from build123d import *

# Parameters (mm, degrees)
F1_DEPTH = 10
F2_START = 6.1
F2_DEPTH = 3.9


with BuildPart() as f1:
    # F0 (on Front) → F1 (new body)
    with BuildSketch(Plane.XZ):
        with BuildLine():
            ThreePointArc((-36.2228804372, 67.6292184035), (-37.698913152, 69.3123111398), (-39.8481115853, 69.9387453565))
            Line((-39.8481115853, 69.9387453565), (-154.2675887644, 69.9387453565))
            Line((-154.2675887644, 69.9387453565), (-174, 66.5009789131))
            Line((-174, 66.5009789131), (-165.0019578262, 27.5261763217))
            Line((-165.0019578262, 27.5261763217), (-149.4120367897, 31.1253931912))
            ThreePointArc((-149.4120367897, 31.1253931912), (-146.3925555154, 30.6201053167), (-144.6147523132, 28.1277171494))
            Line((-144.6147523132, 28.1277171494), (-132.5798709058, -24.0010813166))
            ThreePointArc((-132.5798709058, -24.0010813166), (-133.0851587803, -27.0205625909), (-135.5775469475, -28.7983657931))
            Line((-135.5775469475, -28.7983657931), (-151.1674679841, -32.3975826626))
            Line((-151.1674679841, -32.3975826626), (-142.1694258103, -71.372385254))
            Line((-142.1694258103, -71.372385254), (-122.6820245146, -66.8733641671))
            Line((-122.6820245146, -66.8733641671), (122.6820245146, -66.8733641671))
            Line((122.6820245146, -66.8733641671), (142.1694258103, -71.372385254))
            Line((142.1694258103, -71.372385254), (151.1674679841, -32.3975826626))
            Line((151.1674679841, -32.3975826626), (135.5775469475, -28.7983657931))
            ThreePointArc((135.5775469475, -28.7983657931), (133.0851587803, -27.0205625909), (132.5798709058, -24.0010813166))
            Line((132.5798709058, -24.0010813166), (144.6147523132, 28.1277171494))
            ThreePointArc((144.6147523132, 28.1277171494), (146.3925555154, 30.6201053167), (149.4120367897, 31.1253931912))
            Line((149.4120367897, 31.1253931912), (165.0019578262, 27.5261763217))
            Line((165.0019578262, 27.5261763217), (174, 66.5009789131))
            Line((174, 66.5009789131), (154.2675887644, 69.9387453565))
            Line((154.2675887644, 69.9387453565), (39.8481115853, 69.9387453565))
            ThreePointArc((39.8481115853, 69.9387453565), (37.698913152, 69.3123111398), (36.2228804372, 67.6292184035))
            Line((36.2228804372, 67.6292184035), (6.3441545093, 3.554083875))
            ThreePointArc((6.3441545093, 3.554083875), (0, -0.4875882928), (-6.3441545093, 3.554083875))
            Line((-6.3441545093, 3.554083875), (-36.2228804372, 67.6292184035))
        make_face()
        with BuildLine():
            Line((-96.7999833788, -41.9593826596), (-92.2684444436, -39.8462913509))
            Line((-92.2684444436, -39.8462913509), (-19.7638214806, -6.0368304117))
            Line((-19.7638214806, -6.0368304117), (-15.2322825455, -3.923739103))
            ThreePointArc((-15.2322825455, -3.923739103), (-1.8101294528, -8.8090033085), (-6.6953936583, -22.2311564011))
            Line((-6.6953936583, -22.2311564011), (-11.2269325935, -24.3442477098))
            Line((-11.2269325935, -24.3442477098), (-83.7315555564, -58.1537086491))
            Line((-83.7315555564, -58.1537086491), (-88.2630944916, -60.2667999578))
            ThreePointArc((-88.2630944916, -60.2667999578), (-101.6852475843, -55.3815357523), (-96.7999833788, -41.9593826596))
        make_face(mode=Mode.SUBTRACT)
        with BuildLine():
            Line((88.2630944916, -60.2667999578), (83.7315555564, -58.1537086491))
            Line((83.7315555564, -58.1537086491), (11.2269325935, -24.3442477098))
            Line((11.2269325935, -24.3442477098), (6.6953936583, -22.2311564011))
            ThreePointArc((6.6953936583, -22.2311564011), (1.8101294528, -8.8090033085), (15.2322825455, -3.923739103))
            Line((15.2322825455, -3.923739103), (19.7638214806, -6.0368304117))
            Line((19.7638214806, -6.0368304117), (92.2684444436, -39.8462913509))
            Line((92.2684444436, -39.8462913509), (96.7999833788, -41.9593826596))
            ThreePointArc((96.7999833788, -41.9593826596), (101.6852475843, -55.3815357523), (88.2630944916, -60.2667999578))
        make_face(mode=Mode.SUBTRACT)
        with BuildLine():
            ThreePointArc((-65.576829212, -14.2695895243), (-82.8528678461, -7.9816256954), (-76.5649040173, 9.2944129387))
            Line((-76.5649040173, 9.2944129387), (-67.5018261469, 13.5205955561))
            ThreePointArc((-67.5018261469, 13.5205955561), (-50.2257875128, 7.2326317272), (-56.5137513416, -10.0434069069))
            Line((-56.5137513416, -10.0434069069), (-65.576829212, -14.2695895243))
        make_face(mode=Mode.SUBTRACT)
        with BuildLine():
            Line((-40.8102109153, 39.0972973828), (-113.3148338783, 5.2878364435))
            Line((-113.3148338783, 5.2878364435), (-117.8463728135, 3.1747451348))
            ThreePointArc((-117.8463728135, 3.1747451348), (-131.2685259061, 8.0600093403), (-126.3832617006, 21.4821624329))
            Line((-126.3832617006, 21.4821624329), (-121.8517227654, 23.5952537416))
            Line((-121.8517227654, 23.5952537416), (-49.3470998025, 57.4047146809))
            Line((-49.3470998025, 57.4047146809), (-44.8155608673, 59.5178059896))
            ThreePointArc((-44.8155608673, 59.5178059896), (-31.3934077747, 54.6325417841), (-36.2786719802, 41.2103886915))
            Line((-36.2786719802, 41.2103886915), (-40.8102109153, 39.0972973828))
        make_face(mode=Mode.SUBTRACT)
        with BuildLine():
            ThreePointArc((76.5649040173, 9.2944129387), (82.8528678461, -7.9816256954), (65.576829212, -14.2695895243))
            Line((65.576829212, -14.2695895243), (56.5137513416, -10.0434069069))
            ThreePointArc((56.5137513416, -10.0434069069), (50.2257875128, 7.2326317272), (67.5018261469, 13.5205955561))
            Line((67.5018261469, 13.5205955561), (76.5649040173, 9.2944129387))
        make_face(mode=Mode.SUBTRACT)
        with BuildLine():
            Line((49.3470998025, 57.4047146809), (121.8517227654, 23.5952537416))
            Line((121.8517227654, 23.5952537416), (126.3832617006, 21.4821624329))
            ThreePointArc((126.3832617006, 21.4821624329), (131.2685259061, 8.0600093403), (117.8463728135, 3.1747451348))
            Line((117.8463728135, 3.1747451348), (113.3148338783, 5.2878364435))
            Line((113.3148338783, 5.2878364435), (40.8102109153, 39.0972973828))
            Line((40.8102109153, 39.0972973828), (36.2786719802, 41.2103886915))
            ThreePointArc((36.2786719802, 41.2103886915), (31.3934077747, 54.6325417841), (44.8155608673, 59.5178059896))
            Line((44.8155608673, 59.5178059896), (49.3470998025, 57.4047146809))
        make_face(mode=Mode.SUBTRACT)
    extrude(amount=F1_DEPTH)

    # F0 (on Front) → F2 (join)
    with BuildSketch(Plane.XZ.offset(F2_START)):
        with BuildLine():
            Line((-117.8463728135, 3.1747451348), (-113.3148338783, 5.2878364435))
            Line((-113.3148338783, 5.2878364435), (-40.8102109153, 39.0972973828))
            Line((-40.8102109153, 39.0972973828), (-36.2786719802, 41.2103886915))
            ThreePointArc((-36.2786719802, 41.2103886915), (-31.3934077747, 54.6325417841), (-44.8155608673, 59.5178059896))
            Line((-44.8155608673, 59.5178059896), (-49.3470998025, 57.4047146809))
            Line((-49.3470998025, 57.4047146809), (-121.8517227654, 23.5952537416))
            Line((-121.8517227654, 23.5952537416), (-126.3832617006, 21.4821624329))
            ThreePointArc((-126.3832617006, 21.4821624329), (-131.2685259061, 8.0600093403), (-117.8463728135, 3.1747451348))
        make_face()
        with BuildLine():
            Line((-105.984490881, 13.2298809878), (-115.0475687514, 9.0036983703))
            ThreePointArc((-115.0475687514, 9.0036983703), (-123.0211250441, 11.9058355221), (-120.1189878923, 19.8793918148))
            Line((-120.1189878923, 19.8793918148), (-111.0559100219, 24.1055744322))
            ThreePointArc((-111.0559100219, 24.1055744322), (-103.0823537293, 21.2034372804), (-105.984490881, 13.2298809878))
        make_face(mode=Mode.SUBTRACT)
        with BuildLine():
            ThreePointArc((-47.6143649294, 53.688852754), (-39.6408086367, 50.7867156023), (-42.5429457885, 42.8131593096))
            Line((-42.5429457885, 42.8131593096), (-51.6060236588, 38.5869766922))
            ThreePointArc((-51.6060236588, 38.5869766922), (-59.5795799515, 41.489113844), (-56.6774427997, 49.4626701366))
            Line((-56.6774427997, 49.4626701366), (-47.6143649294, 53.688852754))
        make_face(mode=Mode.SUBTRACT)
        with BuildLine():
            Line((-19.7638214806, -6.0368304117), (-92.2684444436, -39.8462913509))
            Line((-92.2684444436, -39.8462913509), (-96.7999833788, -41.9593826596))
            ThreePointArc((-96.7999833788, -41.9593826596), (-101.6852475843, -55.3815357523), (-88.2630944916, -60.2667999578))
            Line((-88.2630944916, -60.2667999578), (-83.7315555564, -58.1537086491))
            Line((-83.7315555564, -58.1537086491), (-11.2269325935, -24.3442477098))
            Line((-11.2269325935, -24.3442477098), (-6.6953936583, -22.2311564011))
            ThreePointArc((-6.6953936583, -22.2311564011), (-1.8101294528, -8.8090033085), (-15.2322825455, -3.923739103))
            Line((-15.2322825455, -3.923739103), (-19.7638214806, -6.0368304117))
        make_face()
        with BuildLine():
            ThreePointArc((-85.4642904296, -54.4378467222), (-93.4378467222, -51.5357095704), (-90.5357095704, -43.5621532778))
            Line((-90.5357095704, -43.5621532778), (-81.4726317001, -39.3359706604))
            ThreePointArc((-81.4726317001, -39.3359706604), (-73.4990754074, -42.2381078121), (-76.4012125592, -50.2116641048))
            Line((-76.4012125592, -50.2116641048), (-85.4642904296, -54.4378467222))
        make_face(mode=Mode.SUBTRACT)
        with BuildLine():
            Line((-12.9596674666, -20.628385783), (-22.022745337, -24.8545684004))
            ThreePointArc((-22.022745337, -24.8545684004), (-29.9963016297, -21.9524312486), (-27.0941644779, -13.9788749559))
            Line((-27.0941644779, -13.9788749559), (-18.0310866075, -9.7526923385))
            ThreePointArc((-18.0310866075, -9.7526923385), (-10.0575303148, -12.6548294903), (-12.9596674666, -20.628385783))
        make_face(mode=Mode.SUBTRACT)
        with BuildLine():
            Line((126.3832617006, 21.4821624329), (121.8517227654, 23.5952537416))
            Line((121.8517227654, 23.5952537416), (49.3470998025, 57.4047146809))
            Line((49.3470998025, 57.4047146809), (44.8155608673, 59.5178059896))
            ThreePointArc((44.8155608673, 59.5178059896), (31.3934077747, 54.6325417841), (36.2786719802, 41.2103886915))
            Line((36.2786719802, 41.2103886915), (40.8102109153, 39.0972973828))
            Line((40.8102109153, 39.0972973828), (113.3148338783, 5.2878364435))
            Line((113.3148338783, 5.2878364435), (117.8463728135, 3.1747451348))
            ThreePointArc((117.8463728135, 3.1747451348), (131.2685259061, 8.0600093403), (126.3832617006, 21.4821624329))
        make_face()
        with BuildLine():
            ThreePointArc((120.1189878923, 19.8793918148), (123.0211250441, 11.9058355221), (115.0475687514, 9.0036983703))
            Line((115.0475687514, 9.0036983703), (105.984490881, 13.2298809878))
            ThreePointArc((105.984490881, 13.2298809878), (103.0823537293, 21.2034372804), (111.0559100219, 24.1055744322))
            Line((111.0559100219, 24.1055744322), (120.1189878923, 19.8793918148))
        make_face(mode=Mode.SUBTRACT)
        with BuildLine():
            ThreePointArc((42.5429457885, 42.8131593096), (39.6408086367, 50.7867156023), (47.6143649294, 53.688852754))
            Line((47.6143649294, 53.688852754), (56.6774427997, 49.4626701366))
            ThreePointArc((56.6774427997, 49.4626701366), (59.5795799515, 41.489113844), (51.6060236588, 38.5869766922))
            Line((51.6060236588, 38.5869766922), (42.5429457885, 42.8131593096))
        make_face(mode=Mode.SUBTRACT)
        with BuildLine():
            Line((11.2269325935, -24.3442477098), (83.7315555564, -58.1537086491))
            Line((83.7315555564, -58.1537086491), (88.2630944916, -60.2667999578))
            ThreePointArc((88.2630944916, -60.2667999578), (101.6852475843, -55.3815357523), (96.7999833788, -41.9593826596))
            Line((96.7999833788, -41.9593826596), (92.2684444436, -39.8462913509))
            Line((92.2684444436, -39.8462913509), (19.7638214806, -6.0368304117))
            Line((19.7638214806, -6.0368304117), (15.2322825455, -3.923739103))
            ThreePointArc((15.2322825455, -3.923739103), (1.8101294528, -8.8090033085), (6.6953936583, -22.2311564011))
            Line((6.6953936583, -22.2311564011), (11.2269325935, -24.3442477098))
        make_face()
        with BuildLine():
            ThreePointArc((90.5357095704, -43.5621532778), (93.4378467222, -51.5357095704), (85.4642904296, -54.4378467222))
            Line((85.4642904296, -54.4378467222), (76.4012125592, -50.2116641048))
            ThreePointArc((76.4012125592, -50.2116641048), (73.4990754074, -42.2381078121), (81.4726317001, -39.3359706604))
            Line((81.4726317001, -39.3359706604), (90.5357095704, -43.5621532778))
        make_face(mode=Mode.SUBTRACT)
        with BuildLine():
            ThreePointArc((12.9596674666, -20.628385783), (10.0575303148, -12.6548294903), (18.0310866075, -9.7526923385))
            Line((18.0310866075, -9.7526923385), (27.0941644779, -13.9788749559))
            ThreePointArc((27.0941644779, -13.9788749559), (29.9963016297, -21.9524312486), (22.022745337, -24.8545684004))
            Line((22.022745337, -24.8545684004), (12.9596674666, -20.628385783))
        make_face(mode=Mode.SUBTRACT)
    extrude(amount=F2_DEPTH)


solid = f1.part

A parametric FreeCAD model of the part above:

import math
import FreeCAD as App
import Part
import Sketcher
Q = App.Units.Quantity

doc = App.newDocument("Part")
body = doc.addObject("PartDesign::Body", "Body")

# Sketch on XZ plane
sketch1 = body.newObject("Sketcher::SketchObject", "Sketch")
sketch1.AttachmentSupport = (doc.getObject("XZ_Plane"), [""])
sketch1.MapMode = "FlatFace"
sketch1.addGeometry([
    Part.ArcOfCircle(Part.Circle(App.Vector(-39.8, 65.9, 0), App.Vector(0, 0, 1), 4), math.radians(25), math.radians(90)),  # 0
    Part.LineSegment(App.Vector(-39.8, 69.9, 0), App.Vector(-154.3, 69.9, 0)),  # 1
    Part.LineSegment(App.Vector(-154.3, 69.9, 0), App.Vector(-174, 66.5, 0)),  # 2
    Part.LineSegment(App.Vector(-174, 66.5, 0), App.Vector(-165, 27.5, 0)),  # 3
    Part.LineSegment(App.Vector(-165, 27.5, 0), App.Vector(-149.4, 31.1, 0)),  # 4
    Part.ArcOfCircle(Part.Circle(App.Vector(-148.5, 27.2, 0), App.Vector(0, 0, 1), 4), math.radians(13), math.radians(103)),  # 5
    Part.LineSegment(App.Vector(-144.6, 28.1, 0), App.Vector(-132.6, -24, 0)),  # 6
    Part.ArcOfCircle(Part.Circle(App.Vector(-136.5, -24.9, 0), App.Vector(0, 0, 1), 4), math.radians(-77), math.radians(13)),  # 7
    Part.LineSegment(App.Vector(-135.6, -28.8, 0), App.Vector(-151.2, -32.4, 0)),  # 8
    Part.LineSegment(App.Vector(-151.2, -32.4, 0), App.Vector(-142.2, -71.4, 0)),  # 9
    Part.LineSegment(App.Vector(-142.2, -71.4, 0), App.Vector(-122.7, -66.9, 0)),  # 10
    Part.LineSegment(App.Vector(-122.7, -66.9, 0), App.Vector(122.7, -66.9, 0)),  # 11
    Part.LineSegment(App.Vector(122.7, -66.9, 0), App.Vector(142.2, -71.4, 0)),  # 12
    Part.LineSegment(App.Vector(142.2, -71.4, 0), App.Vector(151.2, -32.4, 0)),  # 13
    Part.LineSegment(App.Vector(151.2, -32.4, 0), App.Vector(135.6, -28.8, 0)),  # 14
    Part.ArcOfCircle(Part.Circle(App.Vector(136.5, -24.9, 0), App.Vector(0, 0, 1), 4), math.radians(167), math.radians(257)),  # 15
    Part.LineSegment(App.Vector(132.6, -24, 0), App.Vector(144.6, 28.1, 0)),  # 16
    Part.ArcOfCircle(Part.Circle(App.Vector(148.5, 27.2, 0), App.Vector(0, 0, 1), 4), math.radians(77), math.radians(167)),  # 17
    Part.LineSegment(App.Vector(149.4, 31.1, 0), App.Vector(165, 27.5, 0)),  # 18
    Part.LineSegment(App.Vector(165, 27.5, 0), App.Vector(174, 66.5, 0)),  # 19
    Part.LineSegment(App.Vector(174, 66.5, 0), App.Vector(154.3, 69.9, 0)),  # 20
    Part.LineSegment(App.Vector(154.3, 69.9, 0), App.Vector(39.8, 69.9, 0)),  # 21
    Part.ArcOfCircle(Part.Circle(App.Vector(39.8, 65.9, 0), App.Vector(0, 0, 1), 4), math.radians(90), math.radians(155)),  # 22
    Part.LineSegment(App.Vector(36.2, 67.6, 0), App.Vector(6.3, 3.6, 0)),  # 23
    Part.ArcOfCircle(Part.Circle(App.Vector(0, 6.5, 0), App.Vector(0, 0, 1), 7), math.radians(-155), math.radians(-25)),  # 24
    Part.LineSegment(App.Vector(-6.3, 3.6, 0), App.Vector(-36.2, 67.6, 0)),  # 25
    Part.ArcOfCircle(Part.Circle(App.Vector(-92.5, -51.1, 0), App.Vector(0, 0, 1), 10.1), math.radians(115), math.radians(295)),  # 26
    Part.LineSegment(App.Vector(-96.8, -42, 0), App.Vector(-92.3, -39.8, 0)),  # 27
    Part.LineSegment(App.Vector(-92.3, -39.8, 0), App.Vector(-19.8, -6, 0)),  # 28
    Part.LineSegment(App.Vector(-19.8, -6, 0), App.Vector(-15.2, -3.9, 0)),  # 29
    Part.ArcOfCircle(Part.Circle(App.Vector(-11, -13.1, 0), App.Vector(0, 0, 1), 10.1), math.radians(-65), math.radians(115)),  # 30
    Part.LineSegment(App.Vector(-6.7, -22.2, 0), App.Vector(-11.2, -24.3, 0)),  # 31
    Part.LineSegment(App.Vector(-11.2, -24.3, 0), App.Vector(-83.7, -58.2, 0)),  # 32
    Part.LineSegment(App.Vector(-83.7, -58.2, 0), App.Vector(-88.3, -60.3, 0)),  # 33
    Part.ArcOfCircle(Part.Circle(App.Vector(92.5, -51.1, 0), App.Vector(0, 0, 1), 10.1), math.radians(-115), math.radians(65)),  # 34
    Part.LineSegment(App.Vector(88.3, -60.3, 0), App.Vector(83.7, -58.2, 0)),  # 35
    Part.LineSegment(App.Vector(83.7, -58.2, 0), App.Vector(11.2, -24.3, 0)),  # 36
    Part.LineSegment(App.Vector(11.2, -24.3, 0), App.Vector(6.7, -22.2, 0)),  # 37
    Part.ArcOfCircle(Part.Circle(App.Vector(11, -13.1, 0), App.Vector(0, 0, 1), 10.1), math.radians(65), math.radians(245)),  # 38
    Part.LineSegment(App.Vector(15.2, -3.9, 0), App.Vector(19.8, -6, 0)),  # 39
    Part.LineSegment(App.Vector(19.8, -6, 0), App.Vector(92.3, -39.8, 0)),  # 40
    Part.LineSegment(App.Vector(92.3, -39.8, 0), App.Vector(96.8, -42, 0)),  # 41
    Part.LineSegment(App.Vector(-56.5, -10, 0), App.Vector(-65.6, -14.3, 0)),  # 42
    Part.ArcOfCircle(Part.Circle(App.Vector(-71.1, -2.5, 0), App.Vector(0, 0, 1), 13), math.radians(115), math.radians(295)),  # 43
    Part.LineSegment(App.Vector(-76.6, 9.3, 0), App.Vector(-67.5, 13.5, 0)),  # 44
    Part.ArcOfCircle(Part.Circle(App.Vector(-62, 1.7, 0), App.Vector(0, 0, 1), 13), math.radians(-65), math.radians(115)),  # 45
    Part.LineSegment(App.Vector(-36.3, 41.2, 0), App.Vector(-40.8, 39.1, 0)),  # 46
    Part.LineSegment(App.Vector(-40.8, 39.1, 0), App.Vector(-113.3, 5.3, 0)),  # 47
    Part.LineSegment(App.Vector(-113.3, 5.3, 0), App.Vector(-117.8, 3.2, 0)),  # 48
    Part.ArcOfCircle(Part.Circle(App.Vector(-122.1, 12.3, 0), App.Vector(0, 0, 1), 10.1), math.radians(115), math.radians(295)),  # 49
    Part.LineSegment(App.Vector(-126.4, 21.5, 0), App.Vector(-121.9, 23.6, 0)),  # 50
    Part.LineSegment(App.Vector(-121.9, 23.6, 0), App.Vector(-49.3, 57.4, 0)),  # 51
    Part.LineSegment(App.Vector(-49.3, 57.4, 0), App.Vector(-44.8, 59.5, 0)),  # 52
    Part.ArcOfCircle(Part.Circle(App.Vector(-40.5, 50.4, 0), App.Vector(0, 0, 1), 10.1), math.radians(-65), math.radians(115)),  # 53
    Part.LineSegment(App.Vector(67.5, 13.5, 0), App.Vector(76.6, 9.3, 0)),  # 54
    Part.ArcOfCircle(Part.Circle(App.Vector(71.1, -2.5, 0), App.Vector(0, 0, 1), 13), math.radians(-115), math.radians(65)),  # 55
    Part.LineSegment(App.Vector(65.6, -14.3, 0), App.Vector(56.5, -10, 0)),  # 56
    Part.ArcOfCircle(Part.Circle(App.Vector(62, 1.7, 0), App.Vector(0, 0, 1), 13), math.radians(65), math.radians(245)),  # 57
    Part.LineSegment(App.Vector(44.8, 59.5, 0), App.Vector(49.3, 57.4, 0)),  # 58
    Part.LineSegment(App.Vector(49.3, 57.4, 0), App.Vector(121.9, 23.6, 0)),  # 59
    Part.LineSegment(App.Vector(121.9, 23.6, 0), App.Vector(126.4, 21.5, 0)),  # 60
    Part.ArcOfCircle(Part.Circle(App.Vector(122.1, 12.3, 0), App.Vector(0, 0, 1), 10.1), math.radians(-115), math.radians(65)),  # 61
    Part.LineSegment(App.Vector(117.8, 3.2, 0), App.Vector(113.3, 5.3, 0)),  # 62
    Part.LineSegment(App.Vector(113.3, 5.3, 0), App.Vector(40.8, 39.1, 0)),  # 63
    Part.LineSegment(App.Vector(40.8, 39.1, 0), App.Vector(36.3, 41.2, 0)),  # 64
    Part.ArcOfCircle(Part.Circle(App.Vector(40.5, 50.4, 0), App.Vector(0, 0, 1), 10.1), math.radians(65), math.radians(245)),  # 65
], False)
sketch1.addConstraint([
    Sketcher.Constraint("Tangent", 0, 2, 1, 1),
    Sketcher.Constraint("Coincident", 1, 2, 2, 1),
    Sketcher.Constraint("Coincident", 2, 2, 3, 1),
    Sketcher.Constraint("Coincident", 3, 2, 4, 1),
    Sketcher.Constraint("Tangent", 4, 2, 5, 2),
    Sketcher.Constraint("Tangent", 5, 1, 6, 1),
    Sketcher.Constraint("Tangent", 6, 2, 7, 2),
    Sketcher.Constraint("Tangent", 7, 1, 8, 1),
    Sketcher.Constraint("Coincident", 8, 2, 9, 1),
    Sketcher.Constraint("Coincident", 9, 2, 10, 1),
    Sketcher.Constraint("Coincident", 10, 2, 11, 1),
    Sketcher.Constraint("Coincident", 11, 2, 12, 1),
    Sketcher.Constraint("Coincident", 12, 2, 13, 1),
    Sketcher.Constraint("Coincident", 13, 2, 14, 1),
    Sketcher.Constraint("Tangent", 14, 2, 15, 2),
    Sketcher.Constraint("Tangent", 15, 1, 16, 1),
    Sketcher.Constraint("Tangent", 16, 2, 17, 2),
    Sketcher.Constraint("Tangent", 17, 1, 18, 1),
    Sketcher.Constraint("Coincident", 18, 2, 19, 1),
    Sketcher.Constraint("Coincident", 19, 2, 20, 1),
    Sketcher.Constraint("Coincident", 20, 2, 21, 1),
    Sketcher.Constraint("Tangent", 21, 2, 22, 1),
    Sketcher.Constraint("Tangent", 22, 2, 23, 1),
    Sketcher.Constraint("Tangent", 23, 2, 24, 2),
    Sketcher.Constraint("Tangent", 24, 1, 25, 1),
    Sketcher.Constraint("Tangent", 25, 2, 0, 1),
    Sketcher.Constraint("Tangent", 26, 1, 27, 1),
    Sketcher.Constraint("Coincident", 27, 2, 28, 1),
    Sketcher.Constraint("Coincident", 28, 2, 29, 1),
    Sketcher.Constraint("Tangent", 29, 2, 30, 2),
    Sketcher.Constraint("Tangent", 30, 1, 31, 1),
    Sketcher.Constraint("Coincident", 31, 2, 32, 1),
    Sketcher.Constraint("Coincident", 32, 2, 33, 1),
    Sketcher.Constraint("Tangent", 33, 2, 26, 2),
    Sketcher.Constraint("Tangent", 34, 1, 35, 1),
    Sketcher.Constraint("Coincident", 35, 2, 36, 1),
    Sketcher.Constraint("Coincident", 36, 2, 37, 1),
    Sketcher.Constraint("Tangent", 37, 2, 38, 2),
    Sketcher.Constraint("Tangent", 38, 1, 39, 1),
    Sketcher.Constraint("Coincident", 39, 2, 40, 1),
    Sketcher.Constraint("Coincident", 40, 2, 41, 1),
    Sketcher.Constraint("Tangent", 41, 2, 34, 2),
    Sketcher.Constraint("Tangent", 42, 2, 43, 2),
    Sketcher.Constraint("Tangent", 43, 1, 44, 1),
    Sketcher.Constraint("Tangent", 44, 2, 45, 2),
    Sketcher.Constraint("Tangent", 45, 1, 42, 1),
    Sketcher.Constraint("Coincident", 46, 2, 47, 1),
    Sketcher.Constraint("Coincident", 47, 2, 48, 1),
    Sketcher.Constraint("Tangent", 48, 2, 49, 2),
    Sketcher.Constraint("Tangent", 49, 1, 50, 1),
    Sketcher.Constraint("Coincident", 50, 2, 51, 1),
    Sketcher.Constraint("Coincident", 51, 2, 52, 1),
    Sketcher.Constraint("Tangent", 52, 2, 53, 2),
    Sketcher.Constraint("Tangent", 53, 1, 46, 1),
    Sketcher.Constraint("Tangent", 54, 2, 55, 2),
    Sketcher.Constraint("Tangent", 55, 1, 56, 1),
    Sketcher.Constraint("Tangent", 56, 2, 57, 2),
    Sketcher.Constraint("Tangent", 57, 1, 54, 1),
    Sketcher.Constraint("Coincident", 58, 2, 59, 1),
    Sketcher.Constraint("Coincident", 59, 2, 60, 1),
    Sketcher.Constraint("Tangent", 60, 2, 61, 2),
    Sketcher.Constraint("Tangent", 61, 1, 62, 1),
    Sketcher.Constraint("Coincident", 62, 2, 63, 1),
    Sketcher.Constraint("Coincident", 63, 2, 64, 1),
    Sketcher.Constraint("Tangent", 64, 2, 65, 2),
    Sketcher.Constraint("Tangent", 65, 1, 58, 1),
    Sketcher.Constraint("Horizontal", 1),
    Sketcher.Constraint("Horizontal", 11),
    Sketcher.Constraint("Horizontal", 21),
    Sketcher.Constraint("Equal", 0, 5),
    Sketcher.Constraint("Equal", 5, 7),
    Sketcher.Constraint("Equal", 7, 15),
    Sketcher.Constraint("Equal", 15, 17),
    Sketcher.Constraint("Equal", 17, 22),
    Sketcher.Constraint("Equal", 26, 30),
    Sketcher.Constraint("Equal", 30, 34),
    Sketcher.Constraint("Equal", 34, 38),
    Sketcher.Constraint("Equal", 43, 45),
    Sketcher.Constraint("Equal", 38, 49),
    Sketcher.Constraint("Equal", 49, 53),
    Sketcher.Constraint("Equal", 45, 55),
    Sketcher.Constraint("Equal", 55, 57),
    Sketcher.Constraint("Equal", 53, 61),
    Sketcher.Constraint("Equal", 61, 65),
    Sketcher.Constraint("Symmetric", 7, 3, 15, 3, -2),
    Sketcher.Constraint("Symmetric", 5, 3, 17, 3, -2),
    Sketcher.Constraint("Symmetric", 0, 3, 22, 3, -2),
    Sketcher.Constraint("Symmetric", 26, 3, 34, 3, -2),
    Sketcher.Constraint("Symmetric", 30, 3, 38, 3, -2),
    Sketcher.Constraint("Symmetric", 43, 3, 55, 3, -2),
    Sketcher.Constraint("Symmetric", 45, 3, 57, 3, -2),
    Sketcher.Constraint("Symmetric", 49, 3, 61, 3, -2),
    Sketcher.Constraint("Symmetric", 53, 3, 65, 3, -2),
    Sketcher.Constraint("Symmetric", 9, 2, 12, 2, -2),
    Sketcher.Constraint("Symmetric", 8, 2, 13, 2, -2),
    Sketcher.Constraint("Symmetric", 3, 2, 18, 2, -2),
    Sketcher.Constraint("Symmetric", 2, 2, 19, 2, -2),
    Sketcher.Constraint("Symmetric", 32, 2, 35, 2, -2),
    Sketcher.Constraint("Symmetric", 31, 2, 36, 2, -2),
    Sketcher.Constraint("Symmetric", 28, 2, 39, 2, -2),
    Sketcher.Constraint("Symmetric", 27, 2, 40, 2, -2),
    Sketcher.Constraint("Symmetric", 51, 2, 58, 2, -2),
    Sketcher.Constraint("Symmetric", 50, 2, 59, 2, -2),
    Sketcher.Constraint("Symmetric", 47, 2, 62, 2, -2),
    Sketcher.Constraint("Symmetric", 46, 2, 63, 2, -2),
    Sketcher.Constraint("PointOnObject", 24, 3, -2),
    Sketcher.Constraint("Perpendicular", 3, 4),
    Sketcher.Constraint("Perpendicular", 4, 6),
    Sketcher.Constraint("Perpendicular", 6, 8),
    Sketcher.Constraint("Perpendicular", 8, 9),
    Sketcher.Constraint("Perpendicular", 9, 10),
    Sketcher.Constraint("Perpendicular", 12, 13),
    Sketcher.Constraint("Perpendicular", 25, 27),
    Sketcher.Constraint("Parallel", 27, 28),
    Sketcher.Constraint("Parallel", 28, 29),
    Sketcher.Constraint("Parallel", 29, 31),
    Sketcher.Constraint("Parallel", 31, 32),
    Sketcher.Constraint("Parallel", 33, 42),
    Sketcher.Constraint("Parallel", 44, 46),
    Sketcher.Constraint("Parallel", 46, 47),
    Sketcher.Constraint("Parallel", 47, 48),
    Sketcher.Constraint("Parallel", 48, 50),
    Sketcher.Constraint("Parallel", 50, 51),
    Sketcher.Constraint("Equal", 1, 21),
    Sketcher.Constraint("Equal", 4, 8),
    Sketcher.Constraint("Equal", 3, 9),
    Sketcher.Constraint("Equal", 27, 29),
    Sketcher.Constraint("Equal", 29, 31),
    Sketcher.Constraint("Equal", 28, 32),
    Sketcher.Constraint("Equal", 41, 46),
    Sketcher.Constraint("Equal", 40, 47),
    Sketcher.Constraint("Equal", 46, 48),
    Sketcher.Constraint("Equal", 48, 50),
    Sketcher.Constraint("Equal", 47, 51),
    Sketcher.Constraint("Radius", 0, 4.0),
    Sketcher.Constraint("Radius", 24, 7.0),
    Sketcher.Constraint("Radius", 43, 13.0),
    Sketcher.Constraint("Radius", 26, 10.1),
    Sketcher.Constraint("Angle", 3, Q("-77 deg")),
    Sketcher.Constraint("Angle", 23, Q("-115 deg")),
    Sketcher.Constraint("Distance", 3, 40.0),
    Sketcher.Constraint("Distance", 4, 16.0),
    Sketcher.Constraint("Distance", 10, 20.0),
    Sketcher.Constraint("Distance", 27, 5.0),
    Sketcher.Constraint("Distance", 28, 80.0),
    Sketcher.Constraint("Distance", 42, 10.0),
    Sketcher.Constraint("DistanceX", 2, 2, -1, 1, 174.0),
    Sketcher.Constraint("Distance", 6, 53.5),
    Sketcher.Constraint("DistanceY", 33, 2, -1, 1, 60.2668),
    Sketcher.Constraint("DistanceX", 51, 2, -1, 1, 49.3471),
    Sketcher.Constraint("Distance", 23, 70.699089),
    Sketcher.Constraint("DistanceX", 1, 2, 1, 1, 114.419477),
    Sketcher.Constraint("DistanceY", -1, 1, 24, 3, 6.512412),
    Sketcher.Constraint("DistanceX", 26, 3, -1, 1, 92.531539),
    Sketcher.Constraint("DistanceY", 43, 3, -1, 1, 2.487588),
    Sketcher.Constraint("DistanceX", 45, 3, -1, 1, 62.007789),
    Sketcher.Constraint("DistanceY", -1, 1, 2, 2, 66.500979),
    Sketcher.Constraint("DistanceY", -1, 1, 53, 1, 41.210389),
])
pad1 = body.newObject("PartDesign::Pad", "Pad")
pad1.Profile = sketch1
pad1.Length = 10

# Sketch on XZ plane
sketch2 = body.newObject("Sketcher::SketchObject", "Sketch001")
sketch2.AttachmentSupport = (doc.getObject("XZ_Plane"), [""])
sketch2.MapMode = "FlatFace"
sketch2.AttachmentOffset = App.Placement(App.Vector(0, 0, 6.1), App.Rotation())
sketch2.addGeometry([
    Part.LineSegment(App.Vector(-117.8, 3.2, 0), App.Vector(-113.3, 5.3, 0)),  # 0
    Part.LineSegment(App.Vector(-113.3, 5.3, 0), App.Vector(-40.8, 39.1, 0)),  # 1
    Part.LineSegment(App.Vector(-40.8, 39.1, 0), App.Vector(-36.3, 41.2, 0)),  # 2
    Part.ArcOfCircle(Part.Circle(App.Vector(-40.5, 50.4, 0), App.Vector(0, 0, 1), 10.1), math.radians(-65), math.radians(115)),  # 3
    Part.LineSegment(App.Vector(-44.8, 59.5, 0), App.Vector(-49.3, 57.4, 0)),  # 4
    Part.LineSegment(App.Vector(-49.3, 57.4, 0), App.Vector(-121.9, 23.6, 0)),  # 5
    Part.LineSegment(App.Vector(-121.9, 23.6, 0), App.Vector(-126.4, 21.5, 0)),  # 6
    Part.ArcOfCircle(Part.Circle(App.Vector(-122.1, 12.3, 0), App.Vector(0, 0, 1), 10.1), math.radians(115), math.radians(295)),  # 7
    Part.ArcOfCircle(Part.Circle(App.Vector(-108.5, 18.7, 0), App.Vector(0, 0, 1), 6), math.radians(-65), math.radians(115)),  # 8
    Part.LineSegment(App.Vector(-106, 13.2, 0), App.Vector(-115, 9, 0)),  # 9
    Part.ArcOfCircle(Part.Circle(App.Vector(-117.6, 14.4, 0), App.Vector(0, 0, 1), 6), math.radians(115), math.radians(295)),  # 10
    Part.LineSegment(App.Vector(-120.1, 19.9, 0), App.Vector(-111.1, 24.1, 0)),  # 11
    Part.LineSegment(App.Vector(-56.7, 49.5, 0), App.Vector(-47.6, 53.7, 0)),  # 12
    Part.ArcOfCircle(Part.Circle(App.Vector(-45.1, 48.3, 0), App.Vector(0, 0, 1), 6), math.radians(-65), math.radians(115)),  # 13
    Part.LineSegment(App.Vector(-42.5, 42.8, 0), App.Vector(-51.6, 38.6, 0)),  # 14
    Part.ArcOfCircle(Part.Circle(App.Vector(-54.1, 44, 0), App.Vector(0, 0, 1), 6), math.radians(115), math.radians(295)),  # 15
    Part.LineSegment(App.Vector(-19.8, -6, 0), App.Vector(-92.3, -39.8, 0)),  # 16
    Part.LineSegment(App.Vector(-92.3, -39.8, 0), App.Vector(-96.8, -42, 0)),  # 17
    Part.ArcOfCircle(Part.Circle(App.Vector(-92.5, -51.1, 0), App.Vector(0, 0, 1), 10.1), math.radians(115), math.radians(295)),  # 18
    Part.LineSegment(App.Vector(-88.3, -60.3, 0), App.Vector(-83.7, -58.2, 0)),  # 19
    Part.LineSegment(App.Vector(-83.7, -58.2, 0), App.Vector(-11.2, -24.3, 0)),  # 20
    Part.LineSegment(App.Vector(-11.2, -24.3, 0), App.Vector(-6.7, -22.2, 0)),  # 21
    Part.ArcOfCircle(Part.Circle(App.Vector(-11, -13.1, 0), App.Vector(0, 0, 1), 10.1), math.radians(-65), math.radians(115)),  # 22
    Part.LineSegment(App.Vector(-15.2, -3.9, 0), App.Vector(-19.8, -6, 0)),  # 23
    Part.LineSegment(App.Vector(-76.4, -50.2, 0), App.Vector(-85.5, -54.4, 0)),  # 24
    Part.ArcOfCircle(Part.Circle(App.Vector(-88, -49, 0), App.Vector(0, 0, 1), 6), math.radians(115), math.radians(295)),  # 25
    Part.LineSegment(App.Vector(-90.5, -43.6, 0), App.Vector(-81.5, -39.3, 0)),  # 26
    Part.ArcOfCircle(Part.Circle(App.Vector(-78.9, -44.8, 0), App.Vector(0, 0, 1), 6), math.radians(-65), math.radians(115)),  # 27
    Part.ArcOfCircle(Part.Circle(App.Vector(-15.5, -15.2, 0), App.Vector(0, 0, 1), 6), math.radians(-65), math.radians(115)),  # 28
    Part.LineSegment(App.Vector(-13, -20.6, 0), App.Vector(-22, -24.9, 0)),  # 29
    Part.ArcOfCircle(Part.Circle(App.Vector(-24.6, -19.4, 0), App.Vector(0, 0, 1), 6), math.radians(115), math.radians(295)),  # 30
    Part.LineSegment(App.Vector(-27.1, -14, 0), App.Vector(-18, -9.8, 0)),  # 31
    Part.LineSegment(App.Vector(126.4, 21.5, 0), App.Vector(121.9, 23.6, 0)),  # 32
    Part.LineSegment(App.Vector(121.9, 23.6, 0), App.Vector(49.3, 57.4, 0)),  # 33
    Part.LineSegment(App.Vector(49.3, 57.4, 0), App.Vector(44.8, 59.5, 0)),  # 34
    Part.ArcOfCircle(Part.Circle(App.Vector(40.5, 50.4, 0), App.Vector(0, 0, 1), 10.1), math.radians(65), math.radians(245)),  # 35
    Part.LineSegment(App.Vector(36.3, 41.2, 0), App.Vector(40.8, 39.1, 0)),  # 36
    Part.LineSegment(App.Vector(40.8, 39.1, 0), App.Vector(113.3, 5.3, 0)),  # 37
    Part.LineSegment(App.Vector(113.3, 5.3, 0), App.Vector(117.8, 3.2, 0)),  # 38
    Part.ArcOfCircle(Part.Circle(App.Vector(122.1, 12.3, 0), App.Vector(0, 0, 1), 10.1), math.radians(-115), math.radians(65)),  # 39
    Part.LineSegment(App.Vector(111.1, 24.1, 0), App.Vector(120.1, 19.9, 0)),  # 40
    Part.ArcOfCircle(Part.Circle(App.Vector(117.6, 14.4, 0), App.Vector(0, 0, 1), 6), math.radians(-115), math.radians(65)),  # 41
    Part.LineSegment(App.Vector(115, 9, 0), App.Vector(106, 13.2, 0)),  # 42
    Part.ArcOfCircle(Part.Circle(App.Vector(108.5, 18.7, 0), App.Vector(0, 0, 1), 6), math.radians(65), math.radians(245)),  # 43
    Part.LineSegment(App.Vector(51.6, 38.6, 0), App.Vector(42.5, 42.8, 0)),  # 44
    Part.ArcOfCircle(Part.Circle(App.Vector(45.1, 48.3, 0), App.Vector(0, 0, 1), 6), math.radians(65), math.radians(245)),  # 45
    Part.LineSegment(App.Vector(47.6, 53.7, 0), App.Vector(56.7, 49.5, 0)),  # 46
    Part.ArcOfCircle(Part.Circle(App.Vector(54.1, 44, 0), App.Vector(0, 0, 1), 6), math.radians(-115), math.radians(65)),  # 47
    Part.LineSegment(App.Vector(11.2, -24.3, 0), App.Vector(83.7, -58.2, 0)),  # 48
    Part.LineSegment(App.Vector(83.7, -58.2, 0), App.Vector(88.3, -60.3, 0)),  # 49
    Part.ArcOfCircle(Part.Circle(App.Vector(92.5, -51.1, 0), App.Vector(0, 0, 1), 10.1), math.radians(-115), math.radians(65)),  # 50
    Part.LineSegment(App.Vector(96.8, -42, 0), App.Vector(92.3, -39.8, 0)),  # 51
    Part.LineSegment(App.Vector(92.3, -39.8, 0), App.Vector(19.8, -6, 0)),  # 52
    Part.LineSegment(App.Vector(19.8, -6, 0), App.Vector(15.2, -3.9, 0)),  # 53
    Part.ArcOfCircle(Part.Circle(App.Vector(11, -13.1, 0), App.Vector(0, 0, 1), 10.1), math.radians(65), math.radians(245)),  # 54
    Part.LineSegment(App.Vector(6.7, -22.2, 0), App.Vector(11.2, -24.3, 0)),  # 55
    Part.LineSegment(App.Vector(81.5, -39.3, 0), App.Vector(90.5, -43.6, 0)),  # 56
    Part.ArcOfCircle(Part.Circle(App.Vector(88, -49, 0), App.Vector(0, 0, 1), 6), math.radians(-115), math.radians(65)),  # 57
    Part.LineSegment(App.Vector(85.5, -54.4, 0), App.Vector(76.4, -50.2, 0)),  # 58
    Part.ArcOfCircle(Part.Circle(App.Vector(78.9, -44.8, 0), App.Vector(0, 0, 1), 6), math.radians(65), math.radians(245)),  # 59
    Part.LineSegment(App.Vector(22, -24.9, 0), App.Vector(13, -20.6, 0)),  # 60
    Part.ArcOfCircle(Part.Circle(App.Vector(15.5, -15.2, 0), App.Vector(0, 0, 1), 6), math.radians(65), math.radians(245)),  # 61
    Part.LineSegment(App.Vector(18, -9.8, 0), App.Vector(27.1, -14, 0)),  # 62
    Part.ArcOfCircle(Part.Circle(App.Vector(24.6, -19.4, 0), App.Vector(0, 0, 1), 6), math.radians(-115), math.radians(65)),  # 63
], False)
sketch2.addConstraint([
    Sketcher.Constraint("Coincident", 0, 2, 1, 1),
    Sketcher.Constraint("Coincident", 1, 2, 2, 1),
    Sketcher.Constraint("Tangent", 2, 2, 3, 1),
    Sketcher.Constraint("Tangent", 3, 2, 4, 1),
    Sketcher.Constraint("Coincident", 4, 2, 5, 1),
    Sketcher.Constraint("Coincident", 5, 2, 6, 1),
    Sketcher.Constraint("Tangent", 6, 2, 7, 1),
    Sketcher.Constraint("Tangent", 7, 2, 0, 1),
    Sketcher.Constraint("Tangent", 8, 1, 9, 1),
    Sketcher.Constraint("Tangent", 9, 2, 10, 2),
    Sketcher.Constraint("Tangent", 10, 1, 11, 1),
    Sketcher.Constraint("Tangent", 11, 2, 8, 2),
    Sketcher.Constraint("Tangent", 12, 2, 13, 2),
    Sketcher.Constraint("Tangent", 13, 1, 14, 1),
    Sketcher.Constraint("Tangent", 14, 2, 15, 2),
    Sketcher.Constraint("Tangent", 15, 1, 12, 1),
    Sketcher.Constraint("Coincident", 16, 2, 17, 1),
    Sketcher.Constraint("Tangent", 17, 2, 18, 1),
    Sketcher.Constraint("Tangent", 18, 2, 19, 1),
    Sketcher.Constraint("Coincident", 19, 2, 20, 1),
    Sketcher.Constraint("Coincident", 20, 2, 21, 1),
    Sketcher.Constraint("Tangent", 21, 2, 22, 1),
    Sketcher.Constraint("Tangent", 22, 2, 23, 1),
    Sketcher.Constraint("Coincident", 23, 2, 16, 1),
    Sketcher.Constraint("Tangent", 24, 2, 25, 2),
    Sketcher.Constraint("Tangent", 25, 1, 26, 1),
    Sketcher.Constraint("Tangent", 26, 2, 27, 2),
    Sketcher.Constraint("Tangent", 27, 1, 24, 1),
    Sketcher.Constraint("Tangent", 28, 1, 29, 1),
    Sketcher.Constraint("Tangent", 29, 2, 30, 2),
    Sketcher.Constraint("Tangent", 30, 1, 31, 1),
    Sketcher.Constraint("Tangent", 31, 2, 28, 2),
    Sketcher.Constraint("Coincident", 32, 2, 33, 1),
    Sketcher.Constraint("Coincident", 33, 2, 34, 1),
    Sketcher.Constraint("Tangent", 34, 2, 35, 1),
    Sketcher.Constraint("Tangent", 35, 2, 36, 1),
    Sketcher.Constraint("Coincident", 36, 2, 37, 1),
    Sketcher.Constraint("Coincident", 37, 2, 38, 1),
    Sketcher.Constraint("Tangent", 38, 2, 39, 1),
    Sketcher.Constraint("Tangent", 39, 2, 32, 1),
    Sketcher.Constraint("Tangent", 40, 2, 41, 2),
    Sketcher.Constraint("Tangent", 41, 1, 42, 1),
    Sketcher.Constraint("Tangent", 42, 2, 43, 2),
    Sketcher.Constraint("Tangent", 43, 1, 40, 1),
    Sketcher.Constraint("Tangent", 44, 2, 45, 2),
    Sketcher.Constraint("Tangent", 45, 1, 46, 1),
    Sketcher.Constraint("Tangent", 46, 2, 47, 2),
    Sketcher.Constraint("Tangent", 47, 1, 44, 1),
    Sketcher.Constraint("Coincident", 48, 2, 49, 1),
    Sketcher.Constraint("Tangent", 49, 2, 50, 1),
    Sketcher.Constraint("Tangent", 50, 2, 51, 1),
    Sketcher.Constraint("Coincident", 51, 2, 52, 1),
    Sketcher.Constraint("Coincident", 52, 2, 53, 1),
    Sketcher.Constraint("Tangent", 53, 2, 54, 1),
    Sketcher.Constraint("Tangent", 54, 2, 55, 1),
    Sketcher.Constraint("Coincident", 55, 2, 48, 1),
    Sketcher.Constraint("Tangent", 56, 2, 57, 2),
    Sketcher.Constraint("Tangent", 57, 1, 58, 1),
    Sketcher.Constraint("Tangent", 58, 2, 59, 2),
    Sketcher.Constraint("Tangent", 59, 1, 56, 1),
    Sketcher.Constraint("Tangent", 60, 2, 61, 2),
    Sketcher.Constraint("Tangent", 61, 1, 62, 1),
    Sketcher.Constraint("Tangent", 62, 2, 63, 2),
    Sketcher.Constraint("Tangent", 63, 1, 60, 1),
    Sketcher.Constraint("Equal", 3, 7),
    Sketcher.Constraint("Equal", 8, 10),
    Sketcher.Constraint("Equal", 10, 13),
    Sketcher.Constraint("Equal", 13, 15),
    Sketcher.Constraint("Equal", 7, 18),
    Sketcher.Constraint("Equal", 18, 22),
    Sketcher.Constraint("Equal", 15, 25),
    Sketcher.Constraint("Equal", 25, 27),
    Sketcher.Constraint("Equal", 27, 28),
    Sketcher.Constraint("Equal", 28, 30),
    Sketcher.Constraint("Equal", 22, 35),
    Sketcher.Constraint("Equal", 35, 39),
    Sketcher.Constraint("Equal", 30, 41),
    Sketcher.Constraint("Equal", 41, 43),
    Sketcher.Constraint("Equal", 43, 45),
    Sketcher.Constraint("Equal", 45, 47),
    Sketcher.Constraint("Equal", 39, 50),
    Sketcher.Constraint("Equal", 50, 54),
    Sketcher.Constraint("Equal", 47, 57),
    Sketcher.Constraint("Equal", 57, 59),
    Sketcher.Constraint("Equal", 59, 61),
    Sketcher.Constraint("Equal", 61, 63),
    Sketcher.Constraint("Symmetric", 3, 3, 35, 3, -2),
    Sketcher.Constraint("Symmetric", 7, 3, 39, 3, -2),
    Sketcher.Constraint("Symmetric", 10, 3, 41, 3, -2),
    Sketcher.Constraint("Symmetric", 8, 3, 43, 3, -2),
    Sketcher.Constraint("Symmetric", 13, 3, 45, 3, -2),
    Sketcher.Constraint("Symmetric", 15, 3, 47, 3, -2),
    Sketcher.Constraint("Symmetric", 18, 3, 50, 3, -2),
    Sketcher.Constraint("Symmetric", 22, 3, 54, 3, -2),
    Sketcher.Constraint("Symmetric", 25, 3, 57, 3, -2),
    Sketcher.Constraint("Symmetric", 27, 3, 59, 3, -2),
    Sketcher.Constraint("Symmetric", 28, 3, 61, 3, -2),
    Sketcher.Constraint("Symmetric", 30, 3, 63, 3, -2),
    Sketcher.Constraint("Symmetric", 5, 2, 32, 2, -2),
    Sketcher.Constraint("Symmetric", 4, 2, 33, 2, -2),
    Sketcher.Constraint("Symmetric", 1, 2, 36, 2, -2),
    Sketcher.Constraint("Symmetric", 0, 2, 37, 2, -2),
    Sketcher.Constraint("Symmetric", 19, 2, 48, 2, -2),
    Sketcher.Constraint("Symmetric", 16, 2, 51, 2, -2),
    Sketcher.Constraint("Symmetric", 23, 2, 52, 2, -2),
    Sketcher.Constraint("Symmetric", 20, 2, 55, 2, -2),
    Sketcher.Constraint("Parallel", 0, 1),
    Sketcher.Constraint("Parallel", 1, 2),
    Sketcher.Constraint("Parallel", 2, 4),
    Sketcher.Constraint("Parallel", 4, 5),
    Sketcher.Constraint("Parallel", 6, 9),
    Sketcher.Constraint("Parallel", 11, 12),
    Sketcher.Constraint("Parallel", 14, 16),
    Sketcher.Constraint("Parallel", 16, 17),
    Sketcher.Constraint("Parallel", 17, 19),
    Sketcher.Constraint("Parallel", 19, 20),
    Sketcher.Constraint("Parallel", 20, 21),
    Sketcher.Constraint("Parallel", 23, 24),
    Sketcher.Constraint("Parallel", 26, 29),
    Sketcher.Constraint("Equal", 0, 2),
    Sketcher.Constraint("Equal", 2, 4),
    Sketcher.Constraint("Equal", 1, 5),
    Sketcher.Constraint("Equal", 11, 12),
    Sketcher.Constraint("Equal", 5, 16),
    Sketcher.Constraint("Equal", 6, 17),
    Sketcher.Constraint("Equal", 17, 19),
    Sketcher.Constraint("Equal", 16, 20),
    Sketcher.Constraint("Equal", 19, 21),
    Sketcher.Constraint("Equal", 14, 24),
    Sketcher.Constraint("Equal", 26, 29),
    Sketcher.Constraint("Radius", 8, 6.0),
    Sketcher.Constraint("Radius", 3, 10.1),
    Sketcher.Constraint("Angle", 0, Q("25 deg")),
    Sketcher.Constraint("Distance", 0, 5.0),
    Sketcher.Constraint("Distance", 1, 80.0),
    Sketcher.Constraint("Distance", 9, 10.0),
    Sketcher.Constraint("DistanceX", 25, 3, -1, 1, 88.0),
    Sketcher.Constraint("DistanceY", 25, 3, -1, 1, 49.0),
    Sketcher.Constraint("DistanceX", 8, 3, -1, 1, 108.5202),
    Sketcher.Constraint("DistanceX", 4, 2, -1, 1, 49.3471),
    Sketcher.Constraint("DistanceY", -1, 1, 9, 2, 9.003698),
    Sketcher.Constraint("DistanceY", 18, 2, -1, 1, 60.2668),
    Sketcher.Constraint("DistanceX", 18, 3, -1, 1, 92.531539),
    Sketcher.Constraint("DistanceY", 28, 3, -1, 1, 15.190539),
    Sketcher.Constraint("DistanceY", -1, 1, 2, 2, 41.210389),
    Sketcher.Constraint("DistanceY", -1, 1, 13, 1, 42.813159),
    Sketcher.Constraint("DistanceX", 13, 3, -1, 1, 45.078655),
    Sketcher.Constraint("DistanceX", 28, 3, -1, 1, 15.495377),
])
pad2 = body.newObject("PartDesign::Pad", "Pad001")
pad2.Profile = sketch2
pad2.Length = 3.9

doc.recompute()
